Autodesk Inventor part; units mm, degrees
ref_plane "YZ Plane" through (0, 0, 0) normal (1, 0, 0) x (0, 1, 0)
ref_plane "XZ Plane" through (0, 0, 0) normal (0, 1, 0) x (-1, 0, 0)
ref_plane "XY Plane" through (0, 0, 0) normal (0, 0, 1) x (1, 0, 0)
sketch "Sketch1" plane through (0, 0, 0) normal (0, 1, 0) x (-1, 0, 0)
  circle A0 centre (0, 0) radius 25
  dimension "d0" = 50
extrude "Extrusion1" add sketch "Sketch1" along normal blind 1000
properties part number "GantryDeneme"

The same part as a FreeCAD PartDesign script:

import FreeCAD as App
import Part
import Sketcher

doc = App.newDocument("Part")
body = doc.addObject("PartDesign::Body", "Body")

# Sketch on XZ plane
sketch1 = body.newObject("Sketcher::SketchObject", "Sketch")
sketch1.AttachmentSupport = (doc.getObject("XZ_Plane"), [""])
sketch1.MapMode = "FlatFace"
sketch1.addGeometry(Part.Circle(App.Vector(0, 0, 0), App.Vector(0, 0, 1), 25), False)
sketch1.addConstraint([
    Sketcher.Constraint("Coincident", 0, 3, -1, 1),
    Sketcher.Constraint("Diameter", 0, 50.0),
])
pad1 = body.newObject("PartDesign::Pad", "Pad")
pad1.Profile = sketch1
pad1.Length = 1000
pad1.Reversed = True

doc.recompute()
